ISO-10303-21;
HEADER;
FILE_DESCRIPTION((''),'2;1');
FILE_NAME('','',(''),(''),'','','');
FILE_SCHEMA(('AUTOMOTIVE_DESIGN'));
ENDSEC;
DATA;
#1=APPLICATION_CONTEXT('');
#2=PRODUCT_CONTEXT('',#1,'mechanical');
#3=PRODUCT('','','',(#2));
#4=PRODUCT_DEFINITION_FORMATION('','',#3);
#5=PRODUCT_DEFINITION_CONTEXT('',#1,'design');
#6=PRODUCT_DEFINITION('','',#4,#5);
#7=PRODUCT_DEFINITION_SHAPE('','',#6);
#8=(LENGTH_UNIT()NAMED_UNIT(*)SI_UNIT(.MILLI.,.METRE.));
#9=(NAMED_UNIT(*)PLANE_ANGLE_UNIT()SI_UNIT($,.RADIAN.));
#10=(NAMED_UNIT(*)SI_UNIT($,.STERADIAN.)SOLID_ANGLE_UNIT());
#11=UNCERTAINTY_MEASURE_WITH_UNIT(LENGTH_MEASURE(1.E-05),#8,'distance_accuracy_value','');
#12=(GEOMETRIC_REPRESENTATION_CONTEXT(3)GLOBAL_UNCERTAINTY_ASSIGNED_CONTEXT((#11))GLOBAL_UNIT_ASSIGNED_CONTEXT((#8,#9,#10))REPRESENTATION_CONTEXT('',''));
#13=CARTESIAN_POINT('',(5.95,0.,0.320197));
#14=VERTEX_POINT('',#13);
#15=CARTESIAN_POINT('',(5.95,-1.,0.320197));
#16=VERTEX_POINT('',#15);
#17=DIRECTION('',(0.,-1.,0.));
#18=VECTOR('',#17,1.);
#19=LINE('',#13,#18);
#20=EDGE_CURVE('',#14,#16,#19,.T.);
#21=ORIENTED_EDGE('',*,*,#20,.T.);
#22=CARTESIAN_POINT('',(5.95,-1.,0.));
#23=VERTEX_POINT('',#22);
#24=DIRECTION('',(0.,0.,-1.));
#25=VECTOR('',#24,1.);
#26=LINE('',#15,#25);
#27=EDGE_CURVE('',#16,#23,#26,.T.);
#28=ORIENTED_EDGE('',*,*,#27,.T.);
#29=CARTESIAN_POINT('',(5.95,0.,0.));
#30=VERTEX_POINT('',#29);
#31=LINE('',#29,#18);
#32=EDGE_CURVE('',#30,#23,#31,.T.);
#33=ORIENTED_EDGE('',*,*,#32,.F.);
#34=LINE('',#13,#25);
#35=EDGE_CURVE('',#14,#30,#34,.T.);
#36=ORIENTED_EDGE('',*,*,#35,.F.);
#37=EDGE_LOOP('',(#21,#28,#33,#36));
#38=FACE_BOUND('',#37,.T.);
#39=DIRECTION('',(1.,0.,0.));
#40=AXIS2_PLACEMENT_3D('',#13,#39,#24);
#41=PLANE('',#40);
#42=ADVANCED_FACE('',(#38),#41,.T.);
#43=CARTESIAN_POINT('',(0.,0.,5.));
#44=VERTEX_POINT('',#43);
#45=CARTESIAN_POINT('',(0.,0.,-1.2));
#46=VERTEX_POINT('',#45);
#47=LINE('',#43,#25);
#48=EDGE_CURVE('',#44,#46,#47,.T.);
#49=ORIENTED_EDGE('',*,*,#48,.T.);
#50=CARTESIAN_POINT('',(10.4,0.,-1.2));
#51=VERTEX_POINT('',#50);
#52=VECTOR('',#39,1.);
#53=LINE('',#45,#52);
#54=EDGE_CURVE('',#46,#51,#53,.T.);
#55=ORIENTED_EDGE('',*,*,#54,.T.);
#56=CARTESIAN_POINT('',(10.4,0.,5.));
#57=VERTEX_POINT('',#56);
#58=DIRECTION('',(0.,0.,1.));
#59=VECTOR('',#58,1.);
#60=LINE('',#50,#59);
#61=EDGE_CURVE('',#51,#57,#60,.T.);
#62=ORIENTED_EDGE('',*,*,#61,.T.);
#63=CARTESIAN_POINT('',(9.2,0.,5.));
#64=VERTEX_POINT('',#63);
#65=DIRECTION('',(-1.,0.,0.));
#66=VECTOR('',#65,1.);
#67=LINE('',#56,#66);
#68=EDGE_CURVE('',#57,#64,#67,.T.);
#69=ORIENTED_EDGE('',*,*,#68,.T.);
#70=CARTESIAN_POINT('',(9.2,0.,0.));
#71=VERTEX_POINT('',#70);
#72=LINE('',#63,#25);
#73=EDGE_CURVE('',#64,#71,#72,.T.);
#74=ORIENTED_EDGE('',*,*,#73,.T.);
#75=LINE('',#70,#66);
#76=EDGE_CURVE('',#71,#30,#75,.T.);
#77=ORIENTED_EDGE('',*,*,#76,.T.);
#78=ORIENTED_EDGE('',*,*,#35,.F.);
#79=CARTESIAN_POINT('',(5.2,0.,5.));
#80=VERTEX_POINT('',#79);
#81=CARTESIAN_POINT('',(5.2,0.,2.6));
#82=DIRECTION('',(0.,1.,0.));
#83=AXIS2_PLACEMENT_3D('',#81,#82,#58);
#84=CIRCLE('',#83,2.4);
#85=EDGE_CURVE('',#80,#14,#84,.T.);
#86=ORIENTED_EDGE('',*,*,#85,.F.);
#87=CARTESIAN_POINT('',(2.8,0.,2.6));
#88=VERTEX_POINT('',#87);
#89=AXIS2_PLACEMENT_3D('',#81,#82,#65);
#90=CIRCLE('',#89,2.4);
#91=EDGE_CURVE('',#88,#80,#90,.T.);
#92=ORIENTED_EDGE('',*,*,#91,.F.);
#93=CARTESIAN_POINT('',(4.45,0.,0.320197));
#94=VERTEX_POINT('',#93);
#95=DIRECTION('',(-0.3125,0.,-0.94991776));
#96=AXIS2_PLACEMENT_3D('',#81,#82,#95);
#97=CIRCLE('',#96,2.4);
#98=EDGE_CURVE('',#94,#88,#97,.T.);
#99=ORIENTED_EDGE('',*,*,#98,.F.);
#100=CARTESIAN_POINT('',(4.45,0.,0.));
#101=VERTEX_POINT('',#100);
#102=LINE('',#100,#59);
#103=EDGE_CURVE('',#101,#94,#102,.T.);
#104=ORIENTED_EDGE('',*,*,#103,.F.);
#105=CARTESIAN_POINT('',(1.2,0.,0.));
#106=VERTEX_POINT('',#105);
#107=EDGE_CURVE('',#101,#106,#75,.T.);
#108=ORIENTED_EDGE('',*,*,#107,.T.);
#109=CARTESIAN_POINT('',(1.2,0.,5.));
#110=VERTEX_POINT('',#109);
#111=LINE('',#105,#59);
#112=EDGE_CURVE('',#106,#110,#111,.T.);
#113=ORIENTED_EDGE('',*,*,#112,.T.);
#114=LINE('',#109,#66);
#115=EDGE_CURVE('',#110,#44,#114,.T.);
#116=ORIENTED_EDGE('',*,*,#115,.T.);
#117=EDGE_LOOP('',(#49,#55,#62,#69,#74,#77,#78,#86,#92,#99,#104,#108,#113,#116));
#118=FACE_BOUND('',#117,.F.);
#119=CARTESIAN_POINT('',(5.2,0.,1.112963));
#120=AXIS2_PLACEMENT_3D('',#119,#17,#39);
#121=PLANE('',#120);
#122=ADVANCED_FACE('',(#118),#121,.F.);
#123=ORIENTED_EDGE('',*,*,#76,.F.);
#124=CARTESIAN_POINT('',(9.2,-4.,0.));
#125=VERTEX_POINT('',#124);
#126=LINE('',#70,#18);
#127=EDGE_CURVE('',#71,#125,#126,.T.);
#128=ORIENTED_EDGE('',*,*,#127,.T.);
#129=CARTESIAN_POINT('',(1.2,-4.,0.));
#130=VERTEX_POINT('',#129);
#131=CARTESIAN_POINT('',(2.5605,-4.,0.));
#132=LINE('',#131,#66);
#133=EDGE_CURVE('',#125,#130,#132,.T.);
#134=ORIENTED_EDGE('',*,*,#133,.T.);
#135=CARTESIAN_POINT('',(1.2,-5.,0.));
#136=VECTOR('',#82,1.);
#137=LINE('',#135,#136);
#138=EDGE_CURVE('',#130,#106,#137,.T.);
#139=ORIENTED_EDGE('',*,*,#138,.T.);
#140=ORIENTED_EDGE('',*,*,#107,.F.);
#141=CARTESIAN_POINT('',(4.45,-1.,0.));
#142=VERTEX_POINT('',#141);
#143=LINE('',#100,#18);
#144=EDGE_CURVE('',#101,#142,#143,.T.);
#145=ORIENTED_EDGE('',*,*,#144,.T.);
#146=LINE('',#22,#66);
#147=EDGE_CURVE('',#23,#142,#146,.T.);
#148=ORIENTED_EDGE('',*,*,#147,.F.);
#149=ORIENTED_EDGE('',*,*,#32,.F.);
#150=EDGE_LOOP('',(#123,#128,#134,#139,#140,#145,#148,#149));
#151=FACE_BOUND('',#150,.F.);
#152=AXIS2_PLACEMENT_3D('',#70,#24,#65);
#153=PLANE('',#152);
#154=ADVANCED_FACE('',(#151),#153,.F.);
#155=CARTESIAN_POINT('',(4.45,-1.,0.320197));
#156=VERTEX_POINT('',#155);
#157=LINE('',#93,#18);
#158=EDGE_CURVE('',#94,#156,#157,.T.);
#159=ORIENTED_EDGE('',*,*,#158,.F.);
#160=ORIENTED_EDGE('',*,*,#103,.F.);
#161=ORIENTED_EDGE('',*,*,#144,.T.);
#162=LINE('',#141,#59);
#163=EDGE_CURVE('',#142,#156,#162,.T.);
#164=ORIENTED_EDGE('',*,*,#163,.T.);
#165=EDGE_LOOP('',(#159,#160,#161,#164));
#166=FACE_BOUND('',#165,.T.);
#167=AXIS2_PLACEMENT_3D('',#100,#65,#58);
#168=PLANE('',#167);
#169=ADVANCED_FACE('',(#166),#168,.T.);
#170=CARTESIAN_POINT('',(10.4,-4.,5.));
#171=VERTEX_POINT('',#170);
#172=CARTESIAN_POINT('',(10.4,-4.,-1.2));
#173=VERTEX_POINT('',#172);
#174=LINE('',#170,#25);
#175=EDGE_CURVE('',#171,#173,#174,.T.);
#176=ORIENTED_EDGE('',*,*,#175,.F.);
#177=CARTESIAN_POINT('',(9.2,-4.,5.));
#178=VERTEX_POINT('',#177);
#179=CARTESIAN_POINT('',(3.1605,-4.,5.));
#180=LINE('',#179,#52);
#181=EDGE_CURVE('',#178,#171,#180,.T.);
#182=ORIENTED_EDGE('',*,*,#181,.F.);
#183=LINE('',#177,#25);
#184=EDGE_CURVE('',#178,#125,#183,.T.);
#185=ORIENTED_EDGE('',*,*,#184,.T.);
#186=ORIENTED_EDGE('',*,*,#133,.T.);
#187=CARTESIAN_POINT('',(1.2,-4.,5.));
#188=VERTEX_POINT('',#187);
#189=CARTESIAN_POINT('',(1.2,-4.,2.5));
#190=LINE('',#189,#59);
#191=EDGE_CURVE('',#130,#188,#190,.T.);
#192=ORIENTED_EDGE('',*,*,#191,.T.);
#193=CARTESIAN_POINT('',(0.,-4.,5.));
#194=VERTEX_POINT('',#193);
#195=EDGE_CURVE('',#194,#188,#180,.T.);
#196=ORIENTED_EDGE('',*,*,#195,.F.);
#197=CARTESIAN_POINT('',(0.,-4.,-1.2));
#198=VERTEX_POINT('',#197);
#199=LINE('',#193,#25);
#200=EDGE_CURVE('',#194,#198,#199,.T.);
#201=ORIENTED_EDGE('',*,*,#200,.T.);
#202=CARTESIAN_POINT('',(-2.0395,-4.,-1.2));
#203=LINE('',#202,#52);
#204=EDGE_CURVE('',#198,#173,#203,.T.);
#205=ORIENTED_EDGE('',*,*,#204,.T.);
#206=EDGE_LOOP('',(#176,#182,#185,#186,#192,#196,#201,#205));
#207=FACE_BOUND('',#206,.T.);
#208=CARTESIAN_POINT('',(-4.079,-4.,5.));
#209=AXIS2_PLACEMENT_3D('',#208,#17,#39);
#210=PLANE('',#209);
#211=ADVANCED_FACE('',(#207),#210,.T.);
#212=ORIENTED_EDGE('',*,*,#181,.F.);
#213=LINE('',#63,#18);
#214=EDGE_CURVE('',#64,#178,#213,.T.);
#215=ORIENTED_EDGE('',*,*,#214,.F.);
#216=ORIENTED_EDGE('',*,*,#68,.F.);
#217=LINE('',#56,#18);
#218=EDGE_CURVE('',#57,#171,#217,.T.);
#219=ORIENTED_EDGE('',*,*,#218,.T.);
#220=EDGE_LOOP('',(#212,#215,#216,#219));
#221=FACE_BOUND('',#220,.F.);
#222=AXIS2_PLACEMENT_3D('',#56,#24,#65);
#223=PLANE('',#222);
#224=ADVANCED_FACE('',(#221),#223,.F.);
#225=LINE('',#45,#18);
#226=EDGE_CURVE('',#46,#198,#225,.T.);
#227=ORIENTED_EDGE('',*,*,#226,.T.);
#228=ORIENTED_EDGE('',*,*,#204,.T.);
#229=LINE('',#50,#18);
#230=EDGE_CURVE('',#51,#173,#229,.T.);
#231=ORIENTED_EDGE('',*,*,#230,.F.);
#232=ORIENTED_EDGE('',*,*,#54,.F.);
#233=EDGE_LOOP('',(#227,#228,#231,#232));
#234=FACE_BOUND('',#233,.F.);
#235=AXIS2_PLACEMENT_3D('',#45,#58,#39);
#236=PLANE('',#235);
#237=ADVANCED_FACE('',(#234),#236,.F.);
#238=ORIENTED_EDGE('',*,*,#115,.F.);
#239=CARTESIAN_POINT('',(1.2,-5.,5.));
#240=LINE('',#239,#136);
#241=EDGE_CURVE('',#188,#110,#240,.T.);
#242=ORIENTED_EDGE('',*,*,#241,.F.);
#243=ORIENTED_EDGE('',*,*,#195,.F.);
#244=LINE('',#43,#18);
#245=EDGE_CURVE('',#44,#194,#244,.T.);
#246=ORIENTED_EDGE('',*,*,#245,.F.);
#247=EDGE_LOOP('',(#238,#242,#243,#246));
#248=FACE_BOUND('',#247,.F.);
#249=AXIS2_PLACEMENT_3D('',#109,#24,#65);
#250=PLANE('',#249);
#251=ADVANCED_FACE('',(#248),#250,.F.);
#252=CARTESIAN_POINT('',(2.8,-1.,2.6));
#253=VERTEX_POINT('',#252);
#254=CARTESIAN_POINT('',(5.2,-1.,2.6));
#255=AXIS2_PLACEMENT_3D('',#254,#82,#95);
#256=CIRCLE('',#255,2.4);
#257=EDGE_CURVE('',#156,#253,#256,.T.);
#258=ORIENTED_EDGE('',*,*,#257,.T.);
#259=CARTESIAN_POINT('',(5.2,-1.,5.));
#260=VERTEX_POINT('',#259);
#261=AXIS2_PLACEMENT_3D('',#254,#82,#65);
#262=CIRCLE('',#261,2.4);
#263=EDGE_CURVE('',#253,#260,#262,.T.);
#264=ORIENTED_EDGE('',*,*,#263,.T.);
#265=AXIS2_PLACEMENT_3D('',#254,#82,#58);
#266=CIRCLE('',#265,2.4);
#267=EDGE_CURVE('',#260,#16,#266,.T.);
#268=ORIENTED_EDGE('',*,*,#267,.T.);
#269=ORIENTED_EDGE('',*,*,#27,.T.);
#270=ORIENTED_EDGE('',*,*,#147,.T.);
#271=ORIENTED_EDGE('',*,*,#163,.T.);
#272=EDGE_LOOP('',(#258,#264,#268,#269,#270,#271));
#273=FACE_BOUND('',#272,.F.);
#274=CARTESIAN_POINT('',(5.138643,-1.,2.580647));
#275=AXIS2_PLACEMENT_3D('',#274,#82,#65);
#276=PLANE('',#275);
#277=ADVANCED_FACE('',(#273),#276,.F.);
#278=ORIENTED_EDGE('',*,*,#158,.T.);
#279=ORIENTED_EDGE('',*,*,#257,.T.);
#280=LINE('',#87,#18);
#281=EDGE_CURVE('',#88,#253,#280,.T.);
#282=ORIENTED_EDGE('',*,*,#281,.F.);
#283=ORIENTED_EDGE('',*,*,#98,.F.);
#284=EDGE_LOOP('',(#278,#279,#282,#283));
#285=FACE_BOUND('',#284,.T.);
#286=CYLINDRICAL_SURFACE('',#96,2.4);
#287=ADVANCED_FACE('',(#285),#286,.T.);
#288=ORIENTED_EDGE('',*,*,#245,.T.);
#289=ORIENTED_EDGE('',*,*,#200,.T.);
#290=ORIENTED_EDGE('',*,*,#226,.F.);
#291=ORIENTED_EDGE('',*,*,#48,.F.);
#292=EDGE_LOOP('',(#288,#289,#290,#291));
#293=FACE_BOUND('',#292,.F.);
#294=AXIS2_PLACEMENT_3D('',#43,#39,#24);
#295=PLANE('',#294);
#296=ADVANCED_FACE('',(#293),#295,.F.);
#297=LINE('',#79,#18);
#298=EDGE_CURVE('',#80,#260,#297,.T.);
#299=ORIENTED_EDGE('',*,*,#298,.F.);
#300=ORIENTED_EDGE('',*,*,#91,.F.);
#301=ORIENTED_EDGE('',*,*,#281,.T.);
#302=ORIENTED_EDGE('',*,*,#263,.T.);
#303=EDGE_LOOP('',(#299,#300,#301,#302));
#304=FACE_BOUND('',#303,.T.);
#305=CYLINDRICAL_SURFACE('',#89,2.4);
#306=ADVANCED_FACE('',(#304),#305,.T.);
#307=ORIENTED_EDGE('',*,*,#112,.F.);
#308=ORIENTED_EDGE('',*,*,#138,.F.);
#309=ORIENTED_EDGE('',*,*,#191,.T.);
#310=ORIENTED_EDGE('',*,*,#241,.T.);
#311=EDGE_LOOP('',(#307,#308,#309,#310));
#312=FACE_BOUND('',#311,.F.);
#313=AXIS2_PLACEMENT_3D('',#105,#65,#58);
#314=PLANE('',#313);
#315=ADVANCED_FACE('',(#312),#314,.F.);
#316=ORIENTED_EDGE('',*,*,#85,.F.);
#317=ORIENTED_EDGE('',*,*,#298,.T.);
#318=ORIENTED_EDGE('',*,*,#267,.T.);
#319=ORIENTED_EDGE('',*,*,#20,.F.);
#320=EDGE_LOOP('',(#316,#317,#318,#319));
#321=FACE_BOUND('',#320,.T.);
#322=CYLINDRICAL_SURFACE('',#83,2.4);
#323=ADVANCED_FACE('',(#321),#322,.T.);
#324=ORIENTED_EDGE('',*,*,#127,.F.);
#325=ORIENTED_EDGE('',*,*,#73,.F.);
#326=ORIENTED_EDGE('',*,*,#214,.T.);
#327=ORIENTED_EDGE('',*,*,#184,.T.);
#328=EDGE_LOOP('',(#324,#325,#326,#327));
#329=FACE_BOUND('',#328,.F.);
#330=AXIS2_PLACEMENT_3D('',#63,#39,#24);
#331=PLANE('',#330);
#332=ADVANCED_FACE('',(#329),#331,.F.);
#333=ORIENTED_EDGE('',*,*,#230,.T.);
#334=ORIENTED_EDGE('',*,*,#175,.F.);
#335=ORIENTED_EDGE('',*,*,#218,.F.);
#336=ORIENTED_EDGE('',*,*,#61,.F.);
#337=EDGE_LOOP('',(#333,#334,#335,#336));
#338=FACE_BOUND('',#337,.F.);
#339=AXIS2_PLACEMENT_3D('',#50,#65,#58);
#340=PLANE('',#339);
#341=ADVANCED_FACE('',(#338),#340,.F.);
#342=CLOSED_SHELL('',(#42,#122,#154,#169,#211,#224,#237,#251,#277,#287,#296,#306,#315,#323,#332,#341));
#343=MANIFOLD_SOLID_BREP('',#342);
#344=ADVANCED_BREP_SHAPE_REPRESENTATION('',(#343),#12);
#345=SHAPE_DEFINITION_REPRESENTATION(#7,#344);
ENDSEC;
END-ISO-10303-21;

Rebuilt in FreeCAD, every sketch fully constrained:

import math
import FreeCAD as App
import Part
import Sketcher

V = App.Vector
Q = App.Units.Quantity

doc = App.newDocument("Part")
params = doc.addObject("Spreadsheet::Sheet", "Params")
for row, (alias, value) in enumerate([
    ("sketch1_width", "8 mm"),
    ("sketch1_height", "5 mm"),
    ("sketch1_width2", "10.4 mm"),
    ("sketch1_height2", "6.2 mm"),
    ("pad1_length", "5 mm"),
    ("pad2_length", "1.9 mm"),
    ("pad2_taper", "-10 deg"),
    ("sketch3_radius", "2.4 mm"),
    ("sketch3_width", "1.5 mm"),
    ("pad3_length", "1 mm"),
    ("sketch4_width", "8 mm"),
    ("pocket1_length", "25 mm"),
    ("sketch5_height", "1 mm"),
    ("pocket2_length", "25 mm"),
], start=1):
    params.set(f"A{row}", alias)
    params.set(f"B{row}", "=" + value)
    params.setAlias(f"B{row}", alias)

body = doc.addObject("PartDesign::Body", "Body")

# Sketch on XZ plane
sketch1 = body.newObject("Sketcher::SketchObject", "Sketch")
sketch1.AttachmentSupport = (doc.getObject("XZ_Plane"), [""])
sketch1.MapMode = "FlatFace"
sketch1.addGeometry(Part.LineSegment(V(0, 5, 0), V(0, -1.2, 0)), False)
sketch1.addGeometry(Part.LineSegment(V(0, -1.2, 0), V(10.4, -1.2, 0)), False)
sketch1.addGeometry(Part.LineSegment(V(10.4, -1.2, 0), V(10.4, 5, 0)), False)
sketch1.addGeometry(Part.LineSegment(V(10.4, 5, 0), V(9.2, 5, 0)), False)
sketch1.addGeometry(Part.LineSegment(V(9.2, 5, 0), V(9.2, 0, 0)), False)
sketch1.addGeometry(Part.LineSegment(V(9.2, 0, 0), V(1.2, 0, 0)), False)
sketch1.addGeometry(Part.LineSegment(V(1.2, 0, 0), V(1.2, 5, 0)), False)
sketch1.addGeometry(Part.LineSegment(V(1.2, 5, 0), V(0, 5, 0)), False)
sketch1.addConstraint(Sketcher.Constraint("Coincident", 0, 2, 1, 1))
sketch1.addConstraint(Sketcher.Constraint("Coincident", 1, 2, 2, 1))
sketch1.addConstraint(Sketcher.Constraint("Coincident", 2, 2, 3, 1))
sketch1.addConstraint(Sketcher.Constraint("Coincident", 3, 2, 4, 1))
sketch1.addConstraint(Sketcher.Constraint("Coincident", 4, 2, 5, 1))
sketch1.addConstraint(Sketcher.Constraint("Coincident", 5, 2, 6, 1))
sketch1.addConstraint(Sketcher.Constraint("Coincident", 6, 2, 7, 1))
sketch1.addConstraint(Sketcher.Constraint("Coincident", 7, 2, 0, 1))
sketch1.addConstraint(Sketcher.Constraint("Vertical", 0))
sketch1.addConstraint(Sketcher.Constraint("Horizontal", 1))
sketch1.addConstraint(Sketcher.Constraint("Vertical", 2))
sketch1.addConstraint(Sketcher.Constraint("Horizontal", 3))
sketch1.addConstraint(Sketcher.Constraint("Vertical", 4))
sketch1.addConstraint(Sketcher.Constraint("Horizontal", 5))
sketch1.addConstraint(Sketcher.Constraint("Vertical", 6))
sketch1.addConstraint(Sketcher.Constraint("Horizontal", 7))
sketch1.addConstraint(Sketcher.Constraint("PointOnObject", 0, 2, -2))
sketch1.addConstraint(Sketcher.Constraint("PointOnObject", 4, 2, -1))
sketch1.addConstraint(Sketcher.Constraint("Horizontal", 3, 2, 6, 2))
sketch1.addConstraint(Sketcher.Constraint("Equal", 3, 7))
sketch1.addConstraint(Sketcher.Constraint("DistanceX", 5, 2, 5, 1, Q("8 mm")))
sketch1.addConstraint(Sketcher.Constraint("DistanceY", 4, 2, 4, 1, Q("5 mm")))
sketch1.addConstraint(Sketcher.Constraint("DistanceX", 1, 1, 1, 2, Q("10.4 mm")))
sketch1.addConstraint(Sketcher.Constraint("DistanceY", 0, 2, 0, 1, Q("6.2 mm")))
sketch1.setExpression("Constraints[20]", "Params.sketch1_width")
sketch1.setExpression("Constraints[21]", "Params.sketch1_height")
sketch1.setExpression("Constraints[22]", "Params.sketch1_width2")
sketch1.setExpression("Constraints[23]", "Params.sketch1_height2")
pad1 = body.newObject("PartDesign::Pad", "Pad")
pad1.Profile = sketch1
pad1.setExpression("Length", "Params.pad1_length")

# Sketch on XY plane
sketch2 = body.newObject("Sketcher::SketchObject", "Sketch001")
sketch2.AttachmentSupport = (doc.getObject("XY_Plane"), [""])
sketch2.MapMode = "FlatFace"
sketch2.addGeometry(Part.ArcOfCircle(Part.Circle(V(5.2, -2.5, 0), V(0, 0, 1), 0.8), math.radians(0), math.radians(90)), False)
sketch2.addGeometry(Part.ArcOfCircle(Part.Circle(V(5.2, -2.5, 0), V(0, 0, 1), 0.8), math.radians(90), math.radians(270)), False)
sketch2.addGeometry(Part.ArcOfCircle(Part.Circle(V(5.2, -2.5, 0), V(0, 0, 1), 0.8), math.radians(-90), math.radians(0)), False)
sketch2.addConstraint(Sketcher.Constraint("Tangent", 0, 2, 1, 1))
sketch2.addConstraint(Sketcher.Constraint("Tangent", 1, 2, 2, 1))
sketch2.addConstraint(Sketcher.Constraint("Tangent", 2, 2, 0, 1))
sketch2.addConstraint(Sketcher.Constraint("Horizontal", 1, 3, 2, 2))
sketch2.addConstraint(Sketcher.Constraint("Vertical", 2, 3, 0, 2))
sketch2.addConstraint(Sketcher.Constraint("Vertical", 0, 2, 1, 2))
sketch2.addConstraint(Sketcher.Constraint("DistanceX", -1, 1, 0, 3, Q("5.2 mm")))
sketch2.addConstraint(Sketcher.Constraint("DistanceY", 0, 3, -1, 1, Q("2.5 mm")))
sketch2.addConstraint(Sketcher.Constraint("Radius", 0, Q("0.775825 mm")))
pad2 = body.newObject("PartDesign::Pad", "Pad001")
pad2.Profile = sketch2
pad2.setExpression("Length", "Params.pad2_length")
pad2.setExpression("TaperAngle", "Params.pad2_taper")

# Sketch on XZ plane
sketch3 = body.newObject("Sketcher::SketchObject", "Sketch002")
sketch3.AttachmentSupport = (doc.getObject("XZ_Plane"), [""])
sketch3.MapMode = "FlatFace"
sketch3.addGeometry(Part.ArcOfCircle(Part.Circle(V(5.2, 2.6, 0), V(0, 0, 1), 2.4), math.radians(180), math.radians(252)), False)
sketch3.addGeometry(Part.ArcOfCircle(Part.Circle(V(5.2, 2.6, 0), V(0, 0, 1), 2.4), math.radians(90), math.radians(180)), False)
sketch3.addGeometry(Part.ArcOfCircle(Part.Circle(V(5.2, 2.6, 0), V(0, 0, 1), 2.4), math.radians(-72), math.radians(90)), False)
sketch3.addGeometry(Part.LineSegment(V(5.95, 0.32, 0), V(5.95, 0, 0)), False)
sketch3.addGeometry(Part.LineSegment(V(5.95, 0, 0), V(4.45, 0, 0)), False)
sketch3.addGeometry(Part.LineSegment(V(4.45, 0, 0), V(4.45, 0.32, 0)), False)
sketch3.addConstraint(Sketcher.Constraint("Tangent", 0, 1, 1, 2))
sketch3.addConstraint(Sketcher.Constraint("Tangent", 1, 1, 2, 2))
sketch3.addConstraint(Sketcher.Constraint("Coincident", 2, 1, 3, 1))
sketch3.addConstraint(Sketcher.Constraint("Coincident", 3, 2, 4, 1))
sketch3.addConstraint(Sketcher.Constraint("Coincident", 4, 2, 5, 1))
sketch3.addConstraint(Sketcher.Constraint("Coincident", 5, 2, 0, 2))
sketch3.addConstraint(Sketcher.Constraint("Vertical", 3))
sketch3.addConstraint(Sketcher.Constraint("Horizontal", 4))
sketch3.addConstraint(Sketcher.Constraint("Vertical", 5))
sketch3.addConstraint(Sketcher.Constraint("Coincident", 2, 3, 0, 3))
sketch3.addConstraint(Sketcher.Constraint("PointOnObject", 3, 2, -1))
sketch3.addConstraint(Sketcher.Constraint("Horizontal", 2, 3, 0, 1))
sketch3.addConstraint(Sketcher.Constraint("Horizontal", 2, 1, 5, 2))
sketch3.addConstraint(Sketcher.Constraint("Vertical", 2, 3, 1, 1))
sketch3.addConstraint(Sketcher.Constraint("Radius", 0, Q("2.4 mm")))
sketch3.addConstraint(Sketcher.Constraint("DistanceX", 4, 2, 4, 1, Q("1.5 mm")))
sketch3.addConstraint(Sketcher.Constraint("DistanceY", -1, 1, 1, 1, Q("5 mm")))
sketch3.addConstraint(Sketcher.Constraint("DistanceX", -1, 1, 0, 3, Q("5.2 mm")))
sketch3.setExpression("Constraints[14]", "Params.sketch3_radius")
sketch3.setExpression("Constraints[15]", "Params.sketch3_width")
pad3 = body.newObject("PartDesign::Pad", "Pad002")
pad3.Profile = sketch3
pad3.setExpression("Length", "Params.pad3_length")

# Sketch on XY plane
sketch4 = body.newObject("Sketcher::SketchObject", "Sketch003")
sketch4.AttachmentSupport = (doc.getObject("XY_Plane"), [""])
sketch4.MapMode = "FlatFace"
sketch4.addGeometry(Part.LineSegment(V(1.2, -1.5, 0), V(1.2, -5, 0)), False)
sketch4.addGeometry(Part.LineSegment(V(1.2, -5, 0), V(9.2, -5, 0)), False)
sketch4.addGeometry(Part.LineSegment(V(9.2, -5, 0), V(9.2, -1.5, 0)), False)
sketch4.addGeometry(Part.LineSegment(V(9.2, -1.5, 0), V(1.2, -1.5, 0)), False)
sketch4.addConstraint(Sketcher.Constraint("Coincident", 0, 2, 1, 1))
sketch4.addConstraint(Sketcher.Constraint("Coincident", 1, 2, 2, 1))
sketch4.addConstraint(Sketcher.Constraint("Coincident", 2, 2, 3, 1))
sketch4.addConstraint(Sketcher.Constraint("Coincident", 3, 2, 0, 1))
sketch4.addConstraint(Sketcher.Constraint("Vertical", 0))
sketch4.addConstraint(Sketcher.Constraint("Horizontal", 1))
sketch4.addConstraint(Sketcher.Constraint("Vertical", 2))
sketch4.addConstraint(Sketcher.Constraint("Horizontal", 3))
sketch4.addConstraint(Sketcher.Constraint("DistanceX", 1, 1, 1, 2, Q("8 mm")))
sketch4.addConstraint(Sketcher.Constraint("DistanceY", 0, 2, -1, 1, Q("5 mm")))
sketch4.addConstraint(Sketcher.Constraint("DistanceX", -1, 1, 0, 2, Q("1.2 mm")))
sketch4.addConstraint(Sketcher.Constraint("DistanceY", 0, 2, 0, 1, Q("3.458359 mm")))
sketch4.setExpression("Constraints[8]", "Params.sketch4_width")
pocket1 = body.newObject("PartDesign::Pocket", "Pocket")
pocket1.Profile = sketch4
pocket1.setExpression("Length", "Params.pocket1_length")
pocket1.Reversed = True

# Sketch on XY plane
sketch5 = body.newObject("Sketcher::SketchObject", "Sketch004")
sketch5.AttachmentSupport = (doc.getObject("XY_Plane"), [""])
sketch5.MapMode = "FlatFace"
sketch5.AttachmentOffset = App.Placement(V(0, 0, 5), App.Rotation())
sketch5.addGeometry(Part.LineSegment(V(-4.1, -4, 0), V(-4.1, -5, 0)), False)
sketch5.addGeometry(Part.LineSegment(V(-4.1, -5, 0), V(10.4, -5, 0)), False)
sketch5.addGeometry(Part.LineSegment(V(10.4, -5, 0), V(10.4, -4, 0)), False)
sketch5.addGeometry(Part.LineSegment(V(10.4, -4, 0), V(-4.1, -4, 0)), False)
sketch5.addConstraint(Sketcher.Constraint("Coincident", 0, 2, 1, 1))
sketch5.addConstraint(Sketcher.Constraint("Coincident", 1, 2, 2, 1))
sketch5.addConstraint(Sketcher.Constraint("Coincident", 2, 2, 3, 1))
sketch5.addConstraint(Sketcher.Constraint("Coincident", 3, 2, 0, 1))
sketch5.addConstraint(Sketcher.Constraint("Vertical", 0))
sketch5.addConstraint(Sketcher.Constraint("Horizontal", 1))
sketch5.addConstraint(Sketcher.Constraint("Vertical", 2))
sketch5.addConstraint(Sketcher.Constraint("Horizontal", 3))
sketch5.addConstraint(Sketcher.Constraint("DistanceY", 0, 2, 0, 1, Q("1 mm")))
sketch5.addConstraint(Sketcher.Constraint("DistanceY", 0, 2, -1, 1, Q("5 mm")))
sketch5.addConstraint(Sketcher.Constraint("DistanceX", -1, 1, 1, 2, Q("10.4 mm")))
sketch5.addConstraint(Sketcher.Constraint("DistanceX", 1, 1, 1, 2, Q("14.479 mm")))
sketch5.setExpression("Constraints[8]", "Params.sketch5_height")
pocket2 = body.newObject("PartDesign::Pocket", "Pocket001")
pocket2.Profile = sketch5
pocket2.setExpression("Length", "Params.pocket2_length")

doc.recompute()
